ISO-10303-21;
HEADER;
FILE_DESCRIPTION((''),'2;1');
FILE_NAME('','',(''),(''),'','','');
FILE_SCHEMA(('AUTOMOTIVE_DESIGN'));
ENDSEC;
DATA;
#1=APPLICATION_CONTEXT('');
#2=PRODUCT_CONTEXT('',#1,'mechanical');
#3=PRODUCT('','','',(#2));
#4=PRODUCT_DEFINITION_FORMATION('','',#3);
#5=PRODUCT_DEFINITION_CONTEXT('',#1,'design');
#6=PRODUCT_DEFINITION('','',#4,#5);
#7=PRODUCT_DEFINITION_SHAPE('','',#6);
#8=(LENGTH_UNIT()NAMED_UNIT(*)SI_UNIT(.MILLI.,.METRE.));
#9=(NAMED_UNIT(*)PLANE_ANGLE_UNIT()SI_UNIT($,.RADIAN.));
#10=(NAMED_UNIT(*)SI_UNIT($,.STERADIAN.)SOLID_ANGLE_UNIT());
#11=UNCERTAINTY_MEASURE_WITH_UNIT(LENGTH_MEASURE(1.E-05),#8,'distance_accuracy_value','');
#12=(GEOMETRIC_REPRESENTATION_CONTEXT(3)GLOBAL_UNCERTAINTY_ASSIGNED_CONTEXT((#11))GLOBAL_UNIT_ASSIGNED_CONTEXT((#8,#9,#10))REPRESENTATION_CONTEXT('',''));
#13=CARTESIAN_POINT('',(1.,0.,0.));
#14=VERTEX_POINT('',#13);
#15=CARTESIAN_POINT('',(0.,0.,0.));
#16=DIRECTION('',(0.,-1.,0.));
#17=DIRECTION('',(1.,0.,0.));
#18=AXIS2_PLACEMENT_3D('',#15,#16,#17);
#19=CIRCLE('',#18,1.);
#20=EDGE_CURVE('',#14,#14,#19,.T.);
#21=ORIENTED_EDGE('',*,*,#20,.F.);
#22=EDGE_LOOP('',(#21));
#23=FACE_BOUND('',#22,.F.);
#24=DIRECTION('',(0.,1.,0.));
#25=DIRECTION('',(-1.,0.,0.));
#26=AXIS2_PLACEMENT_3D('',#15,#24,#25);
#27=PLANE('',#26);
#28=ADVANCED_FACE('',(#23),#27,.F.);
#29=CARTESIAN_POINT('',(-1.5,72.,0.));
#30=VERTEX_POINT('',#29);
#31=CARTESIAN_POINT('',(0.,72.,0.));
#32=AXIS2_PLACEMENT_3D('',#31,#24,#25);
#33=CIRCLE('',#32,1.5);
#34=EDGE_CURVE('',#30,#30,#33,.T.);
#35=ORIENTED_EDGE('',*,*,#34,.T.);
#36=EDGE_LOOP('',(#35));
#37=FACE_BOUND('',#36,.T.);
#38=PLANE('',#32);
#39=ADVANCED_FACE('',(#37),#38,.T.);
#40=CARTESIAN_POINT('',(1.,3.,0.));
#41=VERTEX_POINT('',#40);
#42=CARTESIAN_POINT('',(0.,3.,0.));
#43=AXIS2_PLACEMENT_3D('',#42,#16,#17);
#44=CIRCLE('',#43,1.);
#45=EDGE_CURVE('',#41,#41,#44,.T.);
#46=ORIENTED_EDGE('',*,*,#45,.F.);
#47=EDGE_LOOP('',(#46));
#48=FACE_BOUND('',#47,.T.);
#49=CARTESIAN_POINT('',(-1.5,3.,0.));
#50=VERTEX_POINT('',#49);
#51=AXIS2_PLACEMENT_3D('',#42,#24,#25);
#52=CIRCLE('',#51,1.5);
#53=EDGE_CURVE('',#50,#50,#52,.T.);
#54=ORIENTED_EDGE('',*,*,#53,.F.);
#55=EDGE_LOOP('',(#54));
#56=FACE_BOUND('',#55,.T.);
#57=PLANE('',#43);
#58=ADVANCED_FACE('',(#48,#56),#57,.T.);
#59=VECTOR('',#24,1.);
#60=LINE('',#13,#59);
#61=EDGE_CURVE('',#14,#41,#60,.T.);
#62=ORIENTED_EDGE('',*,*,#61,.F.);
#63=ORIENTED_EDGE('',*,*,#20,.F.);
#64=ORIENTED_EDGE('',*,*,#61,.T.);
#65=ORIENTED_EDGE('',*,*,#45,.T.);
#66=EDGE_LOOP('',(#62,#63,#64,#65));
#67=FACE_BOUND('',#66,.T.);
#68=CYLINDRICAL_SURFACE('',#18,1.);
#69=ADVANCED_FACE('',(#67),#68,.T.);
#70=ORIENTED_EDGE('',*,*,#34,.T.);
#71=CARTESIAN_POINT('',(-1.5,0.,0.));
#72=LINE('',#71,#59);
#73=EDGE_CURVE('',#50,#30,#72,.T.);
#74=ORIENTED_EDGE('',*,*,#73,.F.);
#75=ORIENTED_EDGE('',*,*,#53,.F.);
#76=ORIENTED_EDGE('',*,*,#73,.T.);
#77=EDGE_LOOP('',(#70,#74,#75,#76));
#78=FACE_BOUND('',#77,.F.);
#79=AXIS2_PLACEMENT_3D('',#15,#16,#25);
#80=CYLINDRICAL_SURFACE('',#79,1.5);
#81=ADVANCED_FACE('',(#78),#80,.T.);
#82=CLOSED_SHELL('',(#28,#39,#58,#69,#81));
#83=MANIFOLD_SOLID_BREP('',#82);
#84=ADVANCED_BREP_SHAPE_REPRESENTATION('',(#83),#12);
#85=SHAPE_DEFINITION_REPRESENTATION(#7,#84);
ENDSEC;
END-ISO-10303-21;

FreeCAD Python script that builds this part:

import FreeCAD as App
import Part
import Sketcher
from FreeCAD import Vector

doc = App.newDocument("Part")
params = doc.addObject("Spreadsheet::Sheet", "Params")
for row, (alias, value) in enumerate([
    ("sketch1_diameter", "3 mm"),
    ("pad1_length", "72 mm"),
    ("sketch2_diameter", "3 mm"),
    ("sketch2_diameter2", "2 mm"),
    ("pocket1_length", "3 mm"),
], start=1):
    params.set(f"A{row}", alias)
    params.set(f"B{row}", "=" + value)
    params.setAlias(f"B{row}", alias)

body = doc.addObject("PartDesign::Body", "Body")

# Sketch on XZ plane
sketch1 = body.newObject("Sketcher::SketchObject", "Sketch")
sketch1.AttachmentSupport = (doc.getObject("XZ_Plane"), [""])
sketch1.MapMode = "FlatFace"
sketch1.addGeometry(Part.Circle(Vector(0, 0, 0), Vector(0, 0, 1), 1.5), False)
sketch1.addConstraint(Sketcher.Constraint("Coincident", 0, 3, -1, 1))
sketch1.addConstraint(Sketcher.Constraint("Diameter", 0, 3.0))
sketch1.setExpression("Constraints[1]", "Params.sketch1_diameter")
pad1 = body.newObject("PartDesign::Pad", "Pad")
pad1.Profile = sketch1
pad1.setExpression("Length", "Params.pad1_length")
pad1.Reversed = True

# Sketch on XZ plane
sketch2 = body.newObject("Sketcher::SketchObject", "Sketch001")
sketch2.AttachmentSupport = (doc.getObject("XZ_Plane"), [""])
sketch2.MapMode = "FlatFace"
sketch2.addGeometry(Part.Circle(Vector(0, 0, 0), Vector(0, 0, 1), 1.5), False)
sketch2.addGeometry(Part.Circle(Vector(0, 0, 0), Vector(0, 0, 1), 1), False)
sketch2.addConstraint(Sketcher.Constraint("Coincident", 0, 3, -1, 1))
sketch2.addConstraint(Sketcher.Constraint("Coincident", 1, 3, -1, 1))
sketch2.addConstraint(Sketcher.Constraint("Diameter", 0, 3.0))
sketch2.addConstraint(Sketcher.Constraint("Diameter", 1, 2.0))
sketch2.setExpression("Constraints[2]", "Params.sketch2_diameter")
sketch2.setExpression("Constraints[3]", "Params.sketch2_diameter2")
pocket1 = body.newObject("PartDesign::Pocket", "Pocket")
pocket1.Profile = sketch2
pocket1.setExpression("Length", "Params.pocket1_length")

doc.recompute()
